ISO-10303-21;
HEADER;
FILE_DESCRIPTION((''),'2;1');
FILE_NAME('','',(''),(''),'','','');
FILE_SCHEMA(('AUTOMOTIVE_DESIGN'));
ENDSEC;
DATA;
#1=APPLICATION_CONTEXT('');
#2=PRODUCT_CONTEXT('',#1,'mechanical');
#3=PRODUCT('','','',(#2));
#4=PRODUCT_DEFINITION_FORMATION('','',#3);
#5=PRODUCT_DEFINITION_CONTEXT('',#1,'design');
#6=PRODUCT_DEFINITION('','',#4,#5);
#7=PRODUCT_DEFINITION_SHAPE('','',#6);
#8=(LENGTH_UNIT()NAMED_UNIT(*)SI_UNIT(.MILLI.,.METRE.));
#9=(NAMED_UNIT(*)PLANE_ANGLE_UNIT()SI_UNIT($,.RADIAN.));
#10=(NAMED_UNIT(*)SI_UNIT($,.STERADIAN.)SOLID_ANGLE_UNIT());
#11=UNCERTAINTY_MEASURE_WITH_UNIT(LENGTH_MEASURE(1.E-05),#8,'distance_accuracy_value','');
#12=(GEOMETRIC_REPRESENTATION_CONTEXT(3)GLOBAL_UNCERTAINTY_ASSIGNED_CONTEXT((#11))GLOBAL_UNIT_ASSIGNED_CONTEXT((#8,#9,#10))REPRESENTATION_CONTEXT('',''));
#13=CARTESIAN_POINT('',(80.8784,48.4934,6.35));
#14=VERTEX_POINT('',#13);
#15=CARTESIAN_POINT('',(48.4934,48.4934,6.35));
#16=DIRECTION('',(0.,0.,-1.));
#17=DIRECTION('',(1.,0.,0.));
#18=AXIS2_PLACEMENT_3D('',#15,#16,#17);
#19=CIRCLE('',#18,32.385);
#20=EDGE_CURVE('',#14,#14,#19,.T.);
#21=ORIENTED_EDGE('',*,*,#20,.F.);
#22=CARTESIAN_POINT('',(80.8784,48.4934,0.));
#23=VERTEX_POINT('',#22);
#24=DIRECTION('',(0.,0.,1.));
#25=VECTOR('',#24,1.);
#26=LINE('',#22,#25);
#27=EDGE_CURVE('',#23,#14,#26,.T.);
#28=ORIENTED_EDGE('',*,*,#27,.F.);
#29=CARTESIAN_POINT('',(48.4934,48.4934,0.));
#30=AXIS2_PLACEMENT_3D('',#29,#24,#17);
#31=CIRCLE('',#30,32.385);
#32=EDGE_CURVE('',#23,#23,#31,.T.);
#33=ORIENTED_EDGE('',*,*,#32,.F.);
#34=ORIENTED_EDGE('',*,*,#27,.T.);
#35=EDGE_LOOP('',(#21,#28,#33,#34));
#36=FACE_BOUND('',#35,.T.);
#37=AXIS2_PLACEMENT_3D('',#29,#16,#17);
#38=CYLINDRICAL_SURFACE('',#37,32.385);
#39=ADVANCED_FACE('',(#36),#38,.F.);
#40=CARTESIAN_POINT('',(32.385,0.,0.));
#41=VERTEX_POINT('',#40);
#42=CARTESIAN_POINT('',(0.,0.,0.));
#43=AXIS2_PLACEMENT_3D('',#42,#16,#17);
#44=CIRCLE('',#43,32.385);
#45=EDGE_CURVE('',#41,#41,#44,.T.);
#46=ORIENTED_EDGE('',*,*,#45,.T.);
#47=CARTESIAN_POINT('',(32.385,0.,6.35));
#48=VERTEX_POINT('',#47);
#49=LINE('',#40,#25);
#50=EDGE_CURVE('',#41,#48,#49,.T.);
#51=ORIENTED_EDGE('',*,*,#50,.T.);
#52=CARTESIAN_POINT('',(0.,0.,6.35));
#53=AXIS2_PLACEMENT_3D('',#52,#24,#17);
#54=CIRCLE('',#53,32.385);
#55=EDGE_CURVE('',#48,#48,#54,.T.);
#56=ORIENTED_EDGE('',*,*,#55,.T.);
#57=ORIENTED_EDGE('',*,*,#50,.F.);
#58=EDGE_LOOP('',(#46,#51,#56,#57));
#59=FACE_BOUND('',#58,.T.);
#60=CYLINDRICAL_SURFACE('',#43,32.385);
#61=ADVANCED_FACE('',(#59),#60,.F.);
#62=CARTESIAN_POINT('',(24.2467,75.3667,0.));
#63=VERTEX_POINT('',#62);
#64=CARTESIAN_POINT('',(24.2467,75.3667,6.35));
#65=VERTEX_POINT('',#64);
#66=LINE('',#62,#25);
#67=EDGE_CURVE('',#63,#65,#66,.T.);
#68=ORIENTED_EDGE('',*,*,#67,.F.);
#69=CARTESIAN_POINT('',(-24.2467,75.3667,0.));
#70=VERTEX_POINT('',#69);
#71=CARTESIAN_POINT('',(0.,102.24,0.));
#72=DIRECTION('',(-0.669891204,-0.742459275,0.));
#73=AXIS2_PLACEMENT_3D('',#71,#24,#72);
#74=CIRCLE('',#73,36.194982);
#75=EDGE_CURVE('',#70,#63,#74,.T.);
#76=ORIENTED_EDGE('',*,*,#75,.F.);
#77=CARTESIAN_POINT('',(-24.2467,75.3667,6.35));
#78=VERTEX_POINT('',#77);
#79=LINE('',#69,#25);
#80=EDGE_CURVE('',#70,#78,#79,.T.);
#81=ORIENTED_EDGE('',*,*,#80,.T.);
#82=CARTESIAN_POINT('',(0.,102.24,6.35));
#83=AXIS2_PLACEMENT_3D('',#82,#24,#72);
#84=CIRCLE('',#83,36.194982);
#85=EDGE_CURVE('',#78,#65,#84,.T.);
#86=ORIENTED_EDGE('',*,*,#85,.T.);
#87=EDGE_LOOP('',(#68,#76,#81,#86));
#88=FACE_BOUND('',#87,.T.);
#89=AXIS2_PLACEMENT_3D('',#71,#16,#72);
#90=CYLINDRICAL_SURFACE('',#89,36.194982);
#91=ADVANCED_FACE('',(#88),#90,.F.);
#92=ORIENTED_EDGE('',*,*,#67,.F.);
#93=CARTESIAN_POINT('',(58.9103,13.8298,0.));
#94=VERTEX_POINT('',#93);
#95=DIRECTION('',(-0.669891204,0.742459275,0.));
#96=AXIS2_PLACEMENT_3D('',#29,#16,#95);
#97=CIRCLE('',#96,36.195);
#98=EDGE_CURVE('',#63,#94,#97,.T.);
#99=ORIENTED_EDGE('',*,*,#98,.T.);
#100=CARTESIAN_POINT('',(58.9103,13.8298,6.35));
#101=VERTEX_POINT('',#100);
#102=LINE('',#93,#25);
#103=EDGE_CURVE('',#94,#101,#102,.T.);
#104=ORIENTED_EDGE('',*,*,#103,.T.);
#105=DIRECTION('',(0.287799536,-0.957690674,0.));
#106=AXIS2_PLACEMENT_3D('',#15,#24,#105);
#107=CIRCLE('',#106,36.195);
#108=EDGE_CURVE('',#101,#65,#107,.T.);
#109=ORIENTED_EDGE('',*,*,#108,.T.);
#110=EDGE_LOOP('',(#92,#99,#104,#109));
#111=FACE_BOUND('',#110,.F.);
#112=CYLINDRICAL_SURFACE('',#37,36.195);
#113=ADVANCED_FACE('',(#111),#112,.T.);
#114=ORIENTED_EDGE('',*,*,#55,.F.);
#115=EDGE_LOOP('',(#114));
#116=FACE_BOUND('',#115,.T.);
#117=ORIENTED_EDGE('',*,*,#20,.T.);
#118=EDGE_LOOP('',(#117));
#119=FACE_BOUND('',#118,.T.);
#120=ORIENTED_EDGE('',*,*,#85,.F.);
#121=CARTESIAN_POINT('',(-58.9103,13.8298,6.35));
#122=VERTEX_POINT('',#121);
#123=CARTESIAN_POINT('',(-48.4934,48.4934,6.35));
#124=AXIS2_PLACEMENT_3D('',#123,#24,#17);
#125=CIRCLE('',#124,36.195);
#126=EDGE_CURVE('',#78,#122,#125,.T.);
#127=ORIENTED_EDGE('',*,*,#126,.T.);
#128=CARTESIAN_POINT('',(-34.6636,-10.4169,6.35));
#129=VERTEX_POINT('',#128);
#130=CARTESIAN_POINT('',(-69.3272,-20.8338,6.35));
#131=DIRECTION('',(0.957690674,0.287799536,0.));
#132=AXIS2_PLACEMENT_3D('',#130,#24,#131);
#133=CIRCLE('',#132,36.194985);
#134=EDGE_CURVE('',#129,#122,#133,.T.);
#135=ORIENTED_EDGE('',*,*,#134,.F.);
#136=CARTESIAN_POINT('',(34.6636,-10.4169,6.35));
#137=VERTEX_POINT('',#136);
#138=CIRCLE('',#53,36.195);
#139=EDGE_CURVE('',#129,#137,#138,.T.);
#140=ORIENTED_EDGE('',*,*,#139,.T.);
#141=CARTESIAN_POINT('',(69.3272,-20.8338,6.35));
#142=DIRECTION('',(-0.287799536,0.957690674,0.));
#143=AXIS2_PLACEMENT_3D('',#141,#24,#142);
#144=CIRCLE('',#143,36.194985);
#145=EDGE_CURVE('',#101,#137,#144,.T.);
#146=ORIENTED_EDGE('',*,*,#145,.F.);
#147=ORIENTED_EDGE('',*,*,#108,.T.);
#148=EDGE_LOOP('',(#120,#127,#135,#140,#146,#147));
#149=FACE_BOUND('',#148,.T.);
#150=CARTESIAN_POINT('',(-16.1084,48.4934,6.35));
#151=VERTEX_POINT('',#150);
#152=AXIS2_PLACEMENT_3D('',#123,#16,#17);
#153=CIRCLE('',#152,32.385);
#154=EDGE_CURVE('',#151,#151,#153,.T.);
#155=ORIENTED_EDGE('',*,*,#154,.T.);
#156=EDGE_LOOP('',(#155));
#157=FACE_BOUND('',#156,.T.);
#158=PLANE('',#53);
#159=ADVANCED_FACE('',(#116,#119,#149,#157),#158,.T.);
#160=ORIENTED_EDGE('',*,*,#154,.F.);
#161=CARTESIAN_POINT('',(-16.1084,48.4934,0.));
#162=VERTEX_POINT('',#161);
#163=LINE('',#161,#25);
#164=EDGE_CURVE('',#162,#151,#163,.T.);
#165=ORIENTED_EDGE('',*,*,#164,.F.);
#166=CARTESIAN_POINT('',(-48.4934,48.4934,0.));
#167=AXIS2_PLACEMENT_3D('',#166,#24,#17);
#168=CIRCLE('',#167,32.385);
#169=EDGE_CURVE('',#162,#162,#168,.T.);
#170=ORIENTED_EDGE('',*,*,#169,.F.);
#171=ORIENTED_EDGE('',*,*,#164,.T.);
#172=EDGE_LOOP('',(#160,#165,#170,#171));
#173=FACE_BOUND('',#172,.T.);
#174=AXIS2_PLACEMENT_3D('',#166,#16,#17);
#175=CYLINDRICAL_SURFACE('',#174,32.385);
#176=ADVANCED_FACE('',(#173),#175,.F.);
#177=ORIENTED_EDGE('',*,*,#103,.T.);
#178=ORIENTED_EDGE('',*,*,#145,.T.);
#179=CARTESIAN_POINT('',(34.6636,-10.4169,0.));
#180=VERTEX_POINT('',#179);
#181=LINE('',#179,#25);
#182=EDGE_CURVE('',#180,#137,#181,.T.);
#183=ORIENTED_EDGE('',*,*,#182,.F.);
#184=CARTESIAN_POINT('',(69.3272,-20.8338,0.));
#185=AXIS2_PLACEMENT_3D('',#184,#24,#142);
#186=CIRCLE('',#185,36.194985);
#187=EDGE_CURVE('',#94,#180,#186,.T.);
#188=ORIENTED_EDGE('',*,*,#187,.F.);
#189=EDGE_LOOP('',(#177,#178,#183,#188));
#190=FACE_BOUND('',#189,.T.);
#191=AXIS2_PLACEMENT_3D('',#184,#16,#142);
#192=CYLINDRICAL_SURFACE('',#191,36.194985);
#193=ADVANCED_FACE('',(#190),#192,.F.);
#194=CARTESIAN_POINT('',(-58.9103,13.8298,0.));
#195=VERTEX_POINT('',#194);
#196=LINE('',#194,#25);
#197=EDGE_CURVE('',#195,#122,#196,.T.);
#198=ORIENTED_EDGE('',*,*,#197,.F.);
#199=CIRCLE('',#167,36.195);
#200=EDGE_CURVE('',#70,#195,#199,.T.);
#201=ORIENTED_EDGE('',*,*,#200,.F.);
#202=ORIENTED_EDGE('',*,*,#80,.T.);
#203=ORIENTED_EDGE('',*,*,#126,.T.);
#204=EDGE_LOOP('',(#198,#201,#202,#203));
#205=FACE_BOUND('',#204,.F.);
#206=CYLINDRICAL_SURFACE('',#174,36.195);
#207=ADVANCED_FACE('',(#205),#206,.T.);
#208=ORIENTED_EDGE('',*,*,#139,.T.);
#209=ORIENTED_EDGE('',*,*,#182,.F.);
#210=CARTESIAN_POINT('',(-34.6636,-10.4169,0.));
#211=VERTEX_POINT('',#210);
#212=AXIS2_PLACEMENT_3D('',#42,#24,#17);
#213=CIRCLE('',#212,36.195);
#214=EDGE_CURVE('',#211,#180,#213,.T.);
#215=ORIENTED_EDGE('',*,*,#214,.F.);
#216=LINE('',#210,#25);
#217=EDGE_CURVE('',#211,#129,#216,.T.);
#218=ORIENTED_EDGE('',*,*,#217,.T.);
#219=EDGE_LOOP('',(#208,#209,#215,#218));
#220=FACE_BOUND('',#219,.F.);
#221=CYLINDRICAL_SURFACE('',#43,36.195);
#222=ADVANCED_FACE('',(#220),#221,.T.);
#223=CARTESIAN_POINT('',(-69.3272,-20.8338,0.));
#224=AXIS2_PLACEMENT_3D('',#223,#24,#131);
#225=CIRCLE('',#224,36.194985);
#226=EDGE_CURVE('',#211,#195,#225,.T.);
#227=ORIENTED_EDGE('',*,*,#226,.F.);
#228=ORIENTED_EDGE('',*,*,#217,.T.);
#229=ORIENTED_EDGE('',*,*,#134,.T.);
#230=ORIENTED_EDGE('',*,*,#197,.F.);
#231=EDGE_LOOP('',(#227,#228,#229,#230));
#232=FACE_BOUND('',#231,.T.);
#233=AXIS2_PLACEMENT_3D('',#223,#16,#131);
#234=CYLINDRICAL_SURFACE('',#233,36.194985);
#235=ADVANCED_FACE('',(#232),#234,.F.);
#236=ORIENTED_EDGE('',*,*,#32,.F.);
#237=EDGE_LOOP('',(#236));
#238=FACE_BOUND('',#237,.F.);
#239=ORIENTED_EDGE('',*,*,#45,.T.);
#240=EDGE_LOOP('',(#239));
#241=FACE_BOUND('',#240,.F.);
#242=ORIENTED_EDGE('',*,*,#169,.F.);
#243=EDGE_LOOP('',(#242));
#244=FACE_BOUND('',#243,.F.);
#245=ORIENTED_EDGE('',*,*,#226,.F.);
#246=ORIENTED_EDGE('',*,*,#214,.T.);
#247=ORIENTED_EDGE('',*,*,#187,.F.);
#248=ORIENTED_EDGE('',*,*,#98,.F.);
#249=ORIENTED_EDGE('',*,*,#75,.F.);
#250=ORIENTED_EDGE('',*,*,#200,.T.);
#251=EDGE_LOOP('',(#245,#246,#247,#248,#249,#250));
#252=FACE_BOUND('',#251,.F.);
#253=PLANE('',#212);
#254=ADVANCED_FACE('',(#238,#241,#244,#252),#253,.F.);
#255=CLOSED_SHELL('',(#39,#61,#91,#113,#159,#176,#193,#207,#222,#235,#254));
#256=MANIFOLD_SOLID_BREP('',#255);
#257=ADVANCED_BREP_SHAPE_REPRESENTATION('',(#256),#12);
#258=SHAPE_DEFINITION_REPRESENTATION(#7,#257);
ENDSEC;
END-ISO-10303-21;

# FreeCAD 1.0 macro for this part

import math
import FreeCAD as App
import Part
import Sketcher
Q = App.Units.Quantity

doc = App.newDocument("Part")
body = doc.addObject("PartDesign::Body", "Body")

sketch1 = body.newObject("Sketcher::SketchObject", "Sketch")
sketch1.AttachmentSupport = (doc.getObject("XY_Plane"), [""])
sketch1.MapMode = "FlatFace"
sketch1.addGeometry([
    Part.ArcOfCircle(Part.Circle(App.Vector(0, 0, 0), App.Vector(0, 0, 1), 36), math.radians(-163), math.radians(-17)),
    Part.ArcOfCircle(Part.Circle(App.Vector(69, -21, 0), App.Vector(0, 0, 1), 36), math.radians(107), math.radians(163)),
    Part.ArcOfCircle(Part.Circle(App.Vector(48, 48, 0), App.Vector(0, 0, 1), 36), math.radians(-73), math.radians(132)),
    Part.ArcOfCircle(Part.Circle(App.Vector(0, 102, 0), App.Vector(0, 0, 1), 36), math.radians(-132), math.radians(-48)),
    Part.ArcOfCircle(Part.Circle(App.Vector(-48, 48, 0), App.Vector(0, 0, 1), 36), math.radians(48), math.radians(253)),
    Part.ArcOfCircle(Part.Circle(App.Vector(-69, -21, 0), App.Vector(0, 0, 1), 36), math.radians(17), math.radians(73)),
    Part.Circle(App.Vector(0, 0, 0), App.Vector(0, 0, 1), 32),
    Part.Circle(App.Vector(48, 48, 0), App.Vector(0, 0, 1), 32),
    Part.Circle(App.Vector(-48, 48, 0), App.Vector(0, 0, 1), 32),
], False)
sketch1.addConstraint([
    Sketcher.Constraint("Tangent", 0, 2, 1, 2),
    Sketcher.Constraint("Tangent", 1, 1, 2, 1),
    Sketcher.Constraint("Tangent", 2, 2, 3, 2),
    Sketcher.Constraint("Tangent", 3, 1, 4, 1),
    Sketcher.Constraint("Tangent", 4, 2, 5, 2),
    Sketcher.Constraint("Tangent", 5, 1, 0, 1),
    Sketcher.Constraint("Coincident", 0, 3, -1, 1),
    Sketcher.Constraint("Coincident", 6, 3, -1, 1),
    Sketcher.Constraint("Coincident", 7, 3, 2, 3),
    Sketcher.Constraint("Coincident", 8, 3, 4, 3),
    Sketcher.Constraint("Equal", 0, 1),
    Sketcher.Constraint("Equal", 1, 2),
    Sketcher.Constraint("Equal", 2, 3),
    Sketcher.Constraint("Equal", 3, 4),
    Sketcher.Constraint("Equal", 4, 5),
    Sketcher.Constraint("Equal", 6, 7),
    Sketcher.Constraint("Equal", 7, 8),
    Sketcher.Constraint("Symmetric", 2, 3, 4, 3, -2),
    Sketcher.Constraint("Diameter", 6, Q("2.55 in")),
    Sketcher.Constraint("Radius", 0, Q("1.425 in")),
    Sketcher.Constraint("DistanceY", 2, 3, 3, 3, Q("2.116 in")),
    Sketcher.Constraint("DistanceY", -1, 1, 2, 3, Q("1.9092 in")),
])
pad1 = body.newObject("PartDesign::Pad", "Pad")
pad1.Profile = sketch1
pad1.Length = Q("0.25 in")

doc.recompute()
